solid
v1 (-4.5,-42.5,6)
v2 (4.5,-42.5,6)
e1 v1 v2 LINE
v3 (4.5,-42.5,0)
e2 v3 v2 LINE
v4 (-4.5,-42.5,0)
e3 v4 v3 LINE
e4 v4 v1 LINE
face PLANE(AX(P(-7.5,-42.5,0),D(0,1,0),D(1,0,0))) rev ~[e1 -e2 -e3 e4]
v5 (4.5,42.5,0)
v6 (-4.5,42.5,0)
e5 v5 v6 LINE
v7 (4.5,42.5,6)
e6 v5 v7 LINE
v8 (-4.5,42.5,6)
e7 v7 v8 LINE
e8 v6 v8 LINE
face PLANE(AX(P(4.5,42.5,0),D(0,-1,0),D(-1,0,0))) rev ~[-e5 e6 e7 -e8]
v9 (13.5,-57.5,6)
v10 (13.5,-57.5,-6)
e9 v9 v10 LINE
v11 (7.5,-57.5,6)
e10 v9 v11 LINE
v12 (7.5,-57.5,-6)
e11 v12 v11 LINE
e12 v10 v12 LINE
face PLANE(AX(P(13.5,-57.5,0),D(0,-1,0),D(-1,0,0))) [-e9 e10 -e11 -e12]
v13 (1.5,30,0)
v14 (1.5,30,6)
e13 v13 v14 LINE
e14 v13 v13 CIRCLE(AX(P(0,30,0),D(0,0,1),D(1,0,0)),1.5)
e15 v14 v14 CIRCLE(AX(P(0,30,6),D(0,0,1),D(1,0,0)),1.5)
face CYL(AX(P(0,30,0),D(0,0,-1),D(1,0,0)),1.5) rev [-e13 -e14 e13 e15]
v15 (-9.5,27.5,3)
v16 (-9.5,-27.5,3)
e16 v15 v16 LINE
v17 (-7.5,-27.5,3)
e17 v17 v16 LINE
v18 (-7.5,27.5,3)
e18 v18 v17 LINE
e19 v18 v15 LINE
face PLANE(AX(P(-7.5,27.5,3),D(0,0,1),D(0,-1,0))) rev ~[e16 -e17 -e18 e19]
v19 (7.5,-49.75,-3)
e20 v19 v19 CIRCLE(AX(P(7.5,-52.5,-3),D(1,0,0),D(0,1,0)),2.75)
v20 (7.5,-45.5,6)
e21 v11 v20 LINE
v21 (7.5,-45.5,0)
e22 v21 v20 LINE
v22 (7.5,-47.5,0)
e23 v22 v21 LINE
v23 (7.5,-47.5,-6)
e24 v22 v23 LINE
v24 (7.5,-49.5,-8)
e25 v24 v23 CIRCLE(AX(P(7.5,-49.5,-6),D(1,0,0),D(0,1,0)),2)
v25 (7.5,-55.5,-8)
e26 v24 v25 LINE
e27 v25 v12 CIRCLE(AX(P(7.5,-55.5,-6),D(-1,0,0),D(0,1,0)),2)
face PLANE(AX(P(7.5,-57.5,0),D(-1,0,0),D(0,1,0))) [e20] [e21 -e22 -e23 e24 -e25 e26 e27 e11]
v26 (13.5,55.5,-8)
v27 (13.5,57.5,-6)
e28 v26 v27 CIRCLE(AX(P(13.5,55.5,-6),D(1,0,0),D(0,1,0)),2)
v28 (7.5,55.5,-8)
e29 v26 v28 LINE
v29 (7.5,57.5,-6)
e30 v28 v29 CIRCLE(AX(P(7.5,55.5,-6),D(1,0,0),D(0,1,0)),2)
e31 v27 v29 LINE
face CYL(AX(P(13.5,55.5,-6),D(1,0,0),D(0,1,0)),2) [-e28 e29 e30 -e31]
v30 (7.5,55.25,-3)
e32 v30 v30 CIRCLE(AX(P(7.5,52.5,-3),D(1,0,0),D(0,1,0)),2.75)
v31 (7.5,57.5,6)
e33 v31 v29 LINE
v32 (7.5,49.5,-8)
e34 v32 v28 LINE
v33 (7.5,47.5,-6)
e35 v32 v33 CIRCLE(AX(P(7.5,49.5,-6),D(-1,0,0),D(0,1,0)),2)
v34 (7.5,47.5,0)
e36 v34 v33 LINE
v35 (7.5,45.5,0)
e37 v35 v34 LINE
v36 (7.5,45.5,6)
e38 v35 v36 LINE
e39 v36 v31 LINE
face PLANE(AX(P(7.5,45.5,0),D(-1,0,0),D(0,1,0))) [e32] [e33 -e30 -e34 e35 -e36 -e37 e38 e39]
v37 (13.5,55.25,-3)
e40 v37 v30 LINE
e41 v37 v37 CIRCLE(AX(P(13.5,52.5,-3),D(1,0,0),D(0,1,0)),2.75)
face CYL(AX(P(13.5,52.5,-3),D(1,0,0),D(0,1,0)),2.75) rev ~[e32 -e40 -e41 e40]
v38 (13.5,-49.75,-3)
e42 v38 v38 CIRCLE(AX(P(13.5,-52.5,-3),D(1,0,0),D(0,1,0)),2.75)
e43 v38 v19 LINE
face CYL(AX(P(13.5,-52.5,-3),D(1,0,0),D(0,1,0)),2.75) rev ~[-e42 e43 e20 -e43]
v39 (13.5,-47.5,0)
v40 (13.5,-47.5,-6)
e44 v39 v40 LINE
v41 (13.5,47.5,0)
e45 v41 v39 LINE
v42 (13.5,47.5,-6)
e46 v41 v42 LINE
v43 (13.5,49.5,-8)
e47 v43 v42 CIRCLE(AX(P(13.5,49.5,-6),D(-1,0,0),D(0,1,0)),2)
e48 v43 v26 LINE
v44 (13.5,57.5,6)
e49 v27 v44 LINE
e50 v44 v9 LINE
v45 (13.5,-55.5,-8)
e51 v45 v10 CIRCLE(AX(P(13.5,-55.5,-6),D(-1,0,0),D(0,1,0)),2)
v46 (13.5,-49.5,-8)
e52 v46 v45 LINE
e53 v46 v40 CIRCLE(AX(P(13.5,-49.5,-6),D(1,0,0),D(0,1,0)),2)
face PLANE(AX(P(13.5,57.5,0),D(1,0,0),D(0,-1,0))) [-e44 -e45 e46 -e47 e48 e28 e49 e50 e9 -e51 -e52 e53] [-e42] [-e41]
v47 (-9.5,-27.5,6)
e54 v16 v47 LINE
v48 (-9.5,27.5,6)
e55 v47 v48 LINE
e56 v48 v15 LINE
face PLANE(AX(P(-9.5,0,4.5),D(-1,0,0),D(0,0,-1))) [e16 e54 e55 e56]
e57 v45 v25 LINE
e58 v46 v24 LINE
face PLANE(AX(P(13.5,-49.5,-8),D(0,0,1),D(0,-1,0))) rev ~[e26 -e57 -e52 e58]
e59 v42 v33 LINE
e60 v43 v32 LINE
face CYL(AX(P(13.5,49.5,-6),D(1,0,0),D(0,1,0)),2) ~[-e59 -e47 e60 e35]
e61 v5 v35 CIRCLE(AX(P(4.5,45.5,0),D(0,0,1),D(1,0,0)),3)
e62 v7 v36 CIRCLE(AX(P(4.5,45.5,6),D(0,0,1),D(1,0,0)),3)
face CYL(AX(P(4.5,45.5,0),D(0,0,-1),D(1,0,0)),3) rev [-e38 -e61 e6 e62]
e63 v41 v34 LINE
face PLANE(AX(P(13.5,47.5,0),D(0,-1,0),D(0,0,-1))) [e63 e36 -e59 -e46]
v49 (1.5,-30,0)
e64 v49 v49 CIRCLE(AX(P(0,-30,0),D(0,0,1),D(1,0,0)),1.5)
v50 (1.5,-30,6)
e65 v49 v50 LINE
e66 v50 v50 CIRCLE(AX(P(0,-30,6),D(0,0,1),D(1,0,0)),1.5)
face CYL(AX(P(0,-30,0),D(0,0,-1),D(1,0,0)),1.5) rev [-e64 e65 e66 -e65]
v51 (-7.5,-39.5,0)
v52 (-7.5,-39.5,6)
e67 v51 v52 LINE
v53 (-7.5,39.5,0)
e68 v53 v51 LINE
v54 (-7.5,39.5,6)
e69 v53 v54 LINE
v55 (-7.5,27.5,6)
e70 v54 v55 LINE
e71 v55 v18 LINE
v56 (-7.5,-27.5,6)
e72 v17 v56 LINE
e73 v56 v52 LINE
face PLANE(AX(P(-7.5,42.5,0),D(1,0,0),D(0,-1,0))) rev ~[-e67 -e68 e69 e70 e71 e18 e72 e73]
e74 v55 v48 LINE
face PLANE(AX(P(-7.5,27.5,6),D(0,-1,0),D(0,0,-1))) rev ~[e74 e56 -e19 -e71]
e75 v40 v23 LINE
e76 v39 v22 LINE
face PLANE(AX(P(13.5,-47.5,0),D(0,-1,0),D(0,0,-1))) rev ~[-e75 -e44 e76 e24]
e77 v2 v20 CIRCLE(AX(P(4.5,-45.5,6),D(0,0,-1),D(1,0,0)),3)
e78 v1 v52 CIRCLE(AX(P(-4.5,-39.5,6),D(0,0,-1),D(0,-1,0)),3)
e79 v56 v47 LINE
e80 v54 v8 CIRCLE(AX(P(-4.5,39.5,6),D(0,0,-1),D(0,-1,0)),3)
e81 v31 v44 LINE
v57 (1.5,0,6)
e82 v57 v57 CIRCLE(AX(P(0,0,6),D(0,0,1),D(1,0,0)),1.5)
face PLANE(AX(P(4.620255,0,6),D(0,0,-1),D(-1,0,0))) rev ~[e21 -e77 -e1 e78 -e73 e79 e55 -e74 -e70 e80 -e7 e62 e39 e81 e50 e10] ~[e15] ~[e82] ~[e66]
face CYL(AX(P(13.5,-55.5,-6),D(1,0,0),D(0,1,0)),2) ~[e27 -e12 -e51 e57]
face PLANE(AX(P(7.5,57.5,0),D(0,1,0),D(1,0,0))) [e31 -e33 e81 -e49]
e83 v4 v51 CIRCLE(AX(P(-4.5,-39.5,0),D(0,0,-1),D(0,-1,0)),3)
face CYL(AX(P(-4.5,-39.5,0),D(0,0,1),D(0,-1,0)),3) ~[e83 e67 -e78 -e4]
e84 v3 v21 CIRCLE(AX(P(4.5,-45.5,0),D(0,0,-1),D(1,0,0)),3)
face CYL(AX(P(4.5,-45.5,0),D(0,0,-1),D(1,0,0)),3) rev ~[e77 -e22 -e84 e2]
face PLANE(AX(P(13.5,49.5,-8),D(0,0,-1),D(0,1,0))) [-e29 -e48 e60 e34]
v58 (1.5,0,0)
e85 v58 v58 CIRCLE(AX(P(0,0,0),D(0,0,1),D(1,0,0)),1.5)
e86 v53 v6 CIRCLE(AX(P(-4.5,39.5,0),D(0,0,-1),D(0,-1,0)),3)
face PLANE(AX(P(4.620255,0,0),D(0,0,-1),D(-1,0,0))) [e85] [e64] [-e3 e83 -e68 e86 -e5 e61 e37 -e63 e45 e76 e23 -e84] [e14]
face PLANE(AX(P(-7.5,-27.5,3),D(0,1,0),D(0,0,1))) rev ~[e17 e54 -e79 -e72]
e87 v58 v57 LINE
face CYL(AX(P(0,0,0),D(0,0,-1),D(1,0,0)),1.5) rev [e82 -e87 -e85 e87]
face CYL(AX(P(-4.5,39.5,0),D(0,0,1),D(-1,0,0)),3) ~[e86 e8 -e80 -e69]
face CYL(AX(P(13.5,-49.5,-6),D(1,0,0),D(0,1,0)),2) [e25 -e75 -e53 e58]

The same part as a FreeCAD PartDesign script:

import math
import FreeCAD as App
import Part
import Sketcher
from FreeCAD import Vector


def edges_at(feature, points):
    """Names of the edges that pass closest to the given points."""
    edges = feature.Shape.Edges
    near = lambda p: min(range(len(edges)), key=lambda i: edges[i].distToShape(Part.Vertex(*p))[0])
    return sorted({f"Edge{near(p) + 1}" for p in points})

doc = App.newDocument("Part")
body = doc.addObject("PartDesign::Body", "Body")

sketch1 = body.newObject("Sketcher::SketchObject", "Sketch")
sketch1.AttachmentSupport = (doc.getObject("XY_Plane"), [""])
sketch1.MapMode = "FlatFace"
sketch1.addGeometry(Part.ArcOfCircle(Part.Circle(Vector(4.5, 45.5, 0), Vector(0, 0, 1), 3), math.radians(-90), math.radians(0)), False)
sketch1.addGeometry(Part.LineSegment(Vector(4.5, 42.5, 0), Vector(-7.5, 42.5, 0)), False)
sketch1.addGeometry(Part.LineSegment(Vector(-7.5, 42.5, 0), Vector(-7.5, -42.5, 0)), False)
sketch1.addGeometry(Part.LineSegment(Vector(-7.5, -42.5, 0), Vector(4.5, -42.5, 0)), False)
sketch1.addGeometry(Part.ArcOfCircle(Part.Circle(Vector(4.5, -45.5, 0), Vector(0, 0, 1), 3), math.radians(0), math.radians(90)), False)
sketch1.addGeometry(Part.LineSegment(Vector(7.5, -45.5, 0), Vector(7.5, -57.5, 0)), False)
sketch1.addGeometry(Part.LineSegment(Vector(7.5, -57.5, 0), Vector(13.5, -57.5, 0)), False)
sketch1.addGeometry(Part.LineSegment(Vector(13.5, -57.5, 0), Vector(13.5, 57.5, 0)), False)
sketch1.addGeometry(Part.LineSegment(Vector(13.5, 57.5, 0), Vector(7.5, 57.5, 0)), False)
sketch1.addGeometry(Part.LineSegment(Vector(7.5, 57.5, 0), Vector(7.5, 45.5, 0)), False)
sketch1.addGeometry(Part.Circle(Vector(0, -30, 0), Vector(0, 0, 1), 1.5), False)
sketch1.addGeometry(Part.Circle(Vector(0, 0, 0), Vector(0, 0, 1), 1.5), False)
sketch1.addGeometry(Part.Circle(Vector(0, 30, 0), Vector(0, 0, 1), 1.5), False)
sketch1.addConstraint(Sketcher.Constraint("Tangent", 0, 1, 1, 1))
sketch1.addConstraint(Sketcher.Constraint("Coincident", 1, 2, 2, 1))
sketch1.addConstraint(Sketcher.Constraint("Coincident", 2, 2, 3, 1))
sketch1.addConstraint(Sketcher.Constraint("Tangent", 3, 2, 4, 2))
sketch1.addConstraint(Sketcher.Constraint("Tangent", 4, 1, 5, 1))
sketch1.addConstraint(Sketcher.Constraint("Coincident", 5, 2, 6, 1))
sketch1.addConstraint(Sketcher.Constraint("Coincident", 6, 2, 7, 1))
sketch1.addConstraint(Sketcher.Constraint("Coincident", 7, 2, 8, 1))
sketch1.addConstraint(Sketcher.Constraint("Coincident", 8, 2, 9, 1))
sketch1.addConstraint(Sketcher.Constraint("Tangent", 9, 2, 0, 2))
sketch1.addConstraint(Sketcher.Constraint("Horizontal", 1))
sketch1.addConstraint(Sketcher.Constraint("Vertical", 2))
sketch1.addConstraint(Sketcher.Constraint("Horizontal", 3))
sketch1.addConstraint(Sketcher.Constraint("Vertical", 5))
sketch1.addConstraint(Sketcher.Constraint("Horizontal", 6))
sketch1.addConstraint(Sketcher.Constraint("Vertical", 7))
sketch1.addConstraint(Sketcher.Constraint("Horizontal", 8))
sketch1.addConstraint(Sketcher.Constraint("Vertical", 9))
sketch1.addConstraint(Sketcher.Constraint("Coincident", 11, 3, -1, 1))
sketch1.addConstraint(Sketcher.Constraint("Equal", 0, 4))
sketch1.addConstraint(Sketcher.Constraint("Equal", 10, 11))
sketch1.addConstraint(Sketcher.Constraint("Equal", 11, 12))
sketch1.addConstraint(Sketcher.Constraint("Symmetric", 10, 3, 12, 3, -1, 1))
sketch1.addConstraint(Sketcher.Constraint("Symmetric", 0, 3, 4, 3, -1))
sketch1.addConstraint(Sketcher.Constraint("PointOnObject", 10, 3, -2))
sketch1.addConstraint(Sketcher.Constraint("Equal", 3, 5))
sketch1.addConstraint(Sketcher.Constraint("Equal", 5, 9))
sketch1.addConstraint(Sketcher.Constraint("Diameter", 10, 3.0))
sketch1.addConstraint(Sketcher.Constraint("Radius", 0, 3.0))
sketch1.addConstraint(Sketcher.Constraint("DistanceX", 1, 2, 1, 1, 12.0))
sketch1.addConstraint(Sketcher.Constraint("DistanceX", 6, 1, 6, 2, 6.0))
sketch1.addConstraint(Sketcher.Constraint("DistanceY", 2, 2, 2, 1, 85.0))
sketch1.addConstraint(Sketcher.Constraint("DistanceY", 10, 3, -1, 1, 30.0))
sketch1.addConstraint(Sketcher.Constraint("DistanceX", -1, 1, 0, 3, 4.5))
pad1 = body.newObject("PartDesign::Pad", "Pad")
pad1.Profile = sketch1
pad1.Length = 6
doc.recompute()

fillet = body.newObject("PartDesign::Fillet", "Fillet")
fillet.Base = (pad1, edges_at(pad1, [(-7.5, 42.5, 3), (-7.5, -42.5, 3)]))
fillet.Radius = 3

sketch2 = body.newObject("Sketcher::SketchObject", "Sketch001")
sketch2.AttachmentSupport = (doc.getObject("YZ_Plane"), [""])
sketch2.MapMode = "FlatFace"
sketch2.AttachmentOffset = App.Placement(Vector(0, 0, 13.5), App.Rotation())
sketch2.addGeometry(Part.LineSegment(Vector(-47.5, 0, 0), Vector(-57.5, 0, 0)), False)
sketch2.addGeometry(Part.LineSegment(Vector(-57.5, 0, 0), Vector(-57.5, -6, 0)), False)
sketch2.addGeometry(Part.ArcOfCircle(Part.Circle(Vector(-55.5, -6, 0), Vector(0, 0, 1), 2), math.radians(180), math.radians(270)), False)
sketch2.addGeometry(Part.LineSegment(Vector(-55.5, -8, 0), Vector(-49.5, -8, 0)), False)
sketch2.addGeometry(Part.ArcOfCircle(Part.Circle(Vector(-49.5, -6, 0), Vector(0, 0, 1), 2), math.radians(-90), math.radians(0)), False)
sketch2.addGeometry(Part.LineSegment(Vector(-47.5, -6, 0), Vector(-47.5, 0, 0)), False)
sketch2.addGeometry(Part.Circle(Vector(-52.5, -3, 0), Vector(0, 0, 1), 1.8), False)
sketch2.addGeometry(Part.LineSegment(Vector(57.5, -6, 0), Vector(57.5, 0, 0)), False)
sketch2.addGeometry(Part.LineSegment(Vector(57.5, 0, 0), Vector(47.5, 0, 0)), False)
sketch2.addGeometry(Part.LineSegment(Vector(47.5, 0, 0), Vector(47.5, -6, 0)), False)
sketch2.addGeometry(Part.ArcOfCircle(Part.Circle(Vector(49.5, -6, 0), Vector(0, 0, 1), 2), math.radians(180), math.radians(270)), False)
sketch2.addGeometry(Part.LineSegment(Vector(49.5, -8, 0), Vector(55.5, -8, 0)), False)
sketch2.addGeometry(Part.ArcOfCircle(Part.Circle(Vector(55.5, -6, 0), Vector(0, 0, 1), 2), math.radians(-90), math.radians(0)), False)
sketch2.addGeometry(Part.Circle(Vector(52.5, -3, 0), Vector(0, 0, 1), 1.8), False)
sketch2.addConstraint(Sketcher.Constraint("Coincident", 0, 2, 1, 1))
sketch2.addConstraint(Sketcher.Constraint("Tangent", 1, 2, 2, 1))
sketch2.addConstraint(Sketcher.Constraint("Tangent", 2, 2, 3, 1))
sketch2.addConstraint(Sketcher.Constraint("Tangent", 3, 2, 4, 1))
sketch2.addConstraint(Sketcher.Constraint("Tangent", 4, 2, 5, 1))
sketch2.addConstraint(Sketcher.Constraint("Coincident", 5, 2, 0, 1))
sketch2.addConstraint(Sketcher.Constraint("Coincident", 7, 2, 8, 1))
sketch2.addConstraint(Sketcher.Constraint("Coincident", 8, 2, 9, 1))
sketch2.addConstraint(Sketcher.Constraint("Tangent", 9, 2, 10, 1))
sketch2.addConstraint(Sketcher.Constraint("Tangent", 10, 2, 11, 1))
sketch2.addConstraint(Sketcher.Constraint("Tangent", 11, 2, 12, 1))
sketch2.addConstraint(Sketcher.Constraint("Tangent", 12, 2, 7, 1))
sketch2.addConstraint(Sketcher.Constraint("Horizontal", 0))
sketch2.addConstraint(Sketcher.Constraint("Vertical", 1))
sketch2.addConstraint(Sketcher.Constraint("Horizontal", 3))
sketch2.addConstraint(Sketcher.Constraint("Vertical", 5))
sketch2.addConstraint(Sketcher.Constraint("Vertical", 7))
sketch2.addConstraint(Sketcher.Constraint("Horizontal", 8))
sketch2.addConstraint(Sketcher.Constraint("Vertical", 9))
sketch2.addConstraint(Sketcher.Constraint("Horizontal", 11))
sketch2.addConstraint(Sketcher.Constraint("Equal", 2, 4))
sketch2.addConstraint(Sketcher.Constraint("Equal", 4, 10))
sketch2.addConstraint(Sketcher.Constraint("Equal", 10, 12))
sketch2.addConstraint(Sketcher.Constraint("Equal", 6, 13))
sketch2.addConstraint(Sketcher.Constraint("Symmetric", 0, 2, 7, 2, -1, 1))
sketch2.addConstraint(Sketcher.Constraint("Symmetric", 4, 3, 10, 3, -2))
sketch2.addConstraint(Sketcher.Constraint("Symmetric", 6, 3, 13, 3, -2))
sketch2.addConstraint(Sketcher.Constraint("PointOnObject", 0, 2, -1))
sketch2.addConstraint(Sketcher.Constraint("Equal", 11, 1))
sketch2.addConstraint(Sketcher.Constraint("Radius", 2, 2.0))
sketch2.addConstraint(Sketcher.Constraint("Diameter", 6, 3.5))
sketch2.addConstraint(Sketcher.Constraint("DistanceX", 0, 2, 0, 1, 10.0))
sketch2.addConstraint(Sketcher.Constraint("DistanceY", 6, 3, -1, 1, 3.0))
sketch2.addConstraint(Sketcher.Constraint("DistanceX", 2, 3, 6, 3, 3.0))
sketch2.addConstraint(Sketcher.Constraint("DistanceX", 4, 3, 10, 3, 99.0))
pad2 = body.newObject("PartDesign::Pad", "Pad001")
pad2.Profile = sketch2
pad2.Length = 6
pad2.Reversed = True

sketch3 = body.newObject("Sketcher::SketchObject", "Sketch002")
sketch3.AttachmentSupport = (doc.getObject("YZ_Plane"), [""])
sketch3.MapMode = "FlatFace"
sketch3.AttachmentOffset = App.Placement(Vector(0, 0, -7.5), App.Rotation())
sketch3.addGeometry(Part.LineSegment(Vector(27.5, 6, 0), Vector(27.5, 3, 0)), False)
sketch3.addGeometry(Part.LineSegment(Vector(27.5, 3, 0), Vector(-27.5, 3, 0)), False)
sketch3.addGeometry(Part.LineSegment(Vector(-27.5, 3, 0), Vector(-27.5, 6, 0)), False)
sketch3.addGeometry(Part.LineSegment(Vector(-27.5, 6, 0), Vector(27.5, 6, 0)), False)
sketch3.addConstraint(Sketcher.Constraint("Coincident", 0, 2, 1, 1))
sketch3.addConstraint(Sketcher.Constraint("Coincident", 1, 2, 2, 1))
sketch3.addConstraint(Sketcher.Constraint("Coincident", 2, 2, 3, 1))
sketch3.addConstraint(Sketcher.Constraint("Coincident", 3, 2, 0, 1))
sketch3.addConstraint(Sketcher.Constraint("Vertical", 0))
sketch3.addConstraint(Sketcher.Constraint("Horizontal", 1))
sketch3.addConstraint(Sketcher.Constraint("Vertical", 2))
sketch3.addConstraint(Sketcher.Constraint("Horizontal", 3))
sketch3.addConstraint(Sketcher.Constraint("DistanceX", 1, 2, 1, 1, 55.0))
sketch3.addConstraint(Sketcher.Constraint("DistanceY", 0, 2, 0, 1, 3.0))
sketch3.addConstraint(Sketcher.Constraint("DistanceY", -1, 1, 0, 2, 3.0))
sketch3.addConstraint(Sketcher.Constraint("DistanceX", -1, 1, 0, 2, 27.5))
pad3 = body.newObject("PartDesign::Pad", "Pad002")
pad3.Profile = sketch3
pad3.Length = 2
pad3.Reversed = True

sketch4 = body.newObject("Sketcher::SketchObject", "Sketch003")
sketch4.AttachmentSupport = (doc.getObject("YZ_Plane"), [""])
sketch4.MapMode = "FlatFace"
sketch4.AttachmentOffset = App.Placement(Vector(0, 0, 13.5), App.Rotation())
sketch4.addGeometry(Part.Circle(Vector(-52.5, -3, 0), Vector(0, 0, 1), 2.8), False)
sketch4.addGeometry(Part.Circle(Vector(52.5, -3, 0), Vector(0, 0, 1), 2.8), False)
sketch4.addConstraint(Sketcher.Constraint("Equal", 0, 1))
sketch4.addConstraint(Sketcher.Constraint("Symmetric", 0, 3, 1, 3, -2))
sketch4.addConstraint(Sketcher.Constraint("Diameter", 0, 5.5))
sketch4.addConstraint(Sketcher.Constraint("DistanceY", 0, 3, -1, 1, 3.0))
sketch4.addConstraint(Sketcher.Constraint("DistanceX", 0, 3, 1, 3, 105.0))
pocket1 = body.newObject("PartDesign::Pocket", "Pocket")
pocket1.Profile = sketch4
pocket1.Length = 10

doc.recompute()
